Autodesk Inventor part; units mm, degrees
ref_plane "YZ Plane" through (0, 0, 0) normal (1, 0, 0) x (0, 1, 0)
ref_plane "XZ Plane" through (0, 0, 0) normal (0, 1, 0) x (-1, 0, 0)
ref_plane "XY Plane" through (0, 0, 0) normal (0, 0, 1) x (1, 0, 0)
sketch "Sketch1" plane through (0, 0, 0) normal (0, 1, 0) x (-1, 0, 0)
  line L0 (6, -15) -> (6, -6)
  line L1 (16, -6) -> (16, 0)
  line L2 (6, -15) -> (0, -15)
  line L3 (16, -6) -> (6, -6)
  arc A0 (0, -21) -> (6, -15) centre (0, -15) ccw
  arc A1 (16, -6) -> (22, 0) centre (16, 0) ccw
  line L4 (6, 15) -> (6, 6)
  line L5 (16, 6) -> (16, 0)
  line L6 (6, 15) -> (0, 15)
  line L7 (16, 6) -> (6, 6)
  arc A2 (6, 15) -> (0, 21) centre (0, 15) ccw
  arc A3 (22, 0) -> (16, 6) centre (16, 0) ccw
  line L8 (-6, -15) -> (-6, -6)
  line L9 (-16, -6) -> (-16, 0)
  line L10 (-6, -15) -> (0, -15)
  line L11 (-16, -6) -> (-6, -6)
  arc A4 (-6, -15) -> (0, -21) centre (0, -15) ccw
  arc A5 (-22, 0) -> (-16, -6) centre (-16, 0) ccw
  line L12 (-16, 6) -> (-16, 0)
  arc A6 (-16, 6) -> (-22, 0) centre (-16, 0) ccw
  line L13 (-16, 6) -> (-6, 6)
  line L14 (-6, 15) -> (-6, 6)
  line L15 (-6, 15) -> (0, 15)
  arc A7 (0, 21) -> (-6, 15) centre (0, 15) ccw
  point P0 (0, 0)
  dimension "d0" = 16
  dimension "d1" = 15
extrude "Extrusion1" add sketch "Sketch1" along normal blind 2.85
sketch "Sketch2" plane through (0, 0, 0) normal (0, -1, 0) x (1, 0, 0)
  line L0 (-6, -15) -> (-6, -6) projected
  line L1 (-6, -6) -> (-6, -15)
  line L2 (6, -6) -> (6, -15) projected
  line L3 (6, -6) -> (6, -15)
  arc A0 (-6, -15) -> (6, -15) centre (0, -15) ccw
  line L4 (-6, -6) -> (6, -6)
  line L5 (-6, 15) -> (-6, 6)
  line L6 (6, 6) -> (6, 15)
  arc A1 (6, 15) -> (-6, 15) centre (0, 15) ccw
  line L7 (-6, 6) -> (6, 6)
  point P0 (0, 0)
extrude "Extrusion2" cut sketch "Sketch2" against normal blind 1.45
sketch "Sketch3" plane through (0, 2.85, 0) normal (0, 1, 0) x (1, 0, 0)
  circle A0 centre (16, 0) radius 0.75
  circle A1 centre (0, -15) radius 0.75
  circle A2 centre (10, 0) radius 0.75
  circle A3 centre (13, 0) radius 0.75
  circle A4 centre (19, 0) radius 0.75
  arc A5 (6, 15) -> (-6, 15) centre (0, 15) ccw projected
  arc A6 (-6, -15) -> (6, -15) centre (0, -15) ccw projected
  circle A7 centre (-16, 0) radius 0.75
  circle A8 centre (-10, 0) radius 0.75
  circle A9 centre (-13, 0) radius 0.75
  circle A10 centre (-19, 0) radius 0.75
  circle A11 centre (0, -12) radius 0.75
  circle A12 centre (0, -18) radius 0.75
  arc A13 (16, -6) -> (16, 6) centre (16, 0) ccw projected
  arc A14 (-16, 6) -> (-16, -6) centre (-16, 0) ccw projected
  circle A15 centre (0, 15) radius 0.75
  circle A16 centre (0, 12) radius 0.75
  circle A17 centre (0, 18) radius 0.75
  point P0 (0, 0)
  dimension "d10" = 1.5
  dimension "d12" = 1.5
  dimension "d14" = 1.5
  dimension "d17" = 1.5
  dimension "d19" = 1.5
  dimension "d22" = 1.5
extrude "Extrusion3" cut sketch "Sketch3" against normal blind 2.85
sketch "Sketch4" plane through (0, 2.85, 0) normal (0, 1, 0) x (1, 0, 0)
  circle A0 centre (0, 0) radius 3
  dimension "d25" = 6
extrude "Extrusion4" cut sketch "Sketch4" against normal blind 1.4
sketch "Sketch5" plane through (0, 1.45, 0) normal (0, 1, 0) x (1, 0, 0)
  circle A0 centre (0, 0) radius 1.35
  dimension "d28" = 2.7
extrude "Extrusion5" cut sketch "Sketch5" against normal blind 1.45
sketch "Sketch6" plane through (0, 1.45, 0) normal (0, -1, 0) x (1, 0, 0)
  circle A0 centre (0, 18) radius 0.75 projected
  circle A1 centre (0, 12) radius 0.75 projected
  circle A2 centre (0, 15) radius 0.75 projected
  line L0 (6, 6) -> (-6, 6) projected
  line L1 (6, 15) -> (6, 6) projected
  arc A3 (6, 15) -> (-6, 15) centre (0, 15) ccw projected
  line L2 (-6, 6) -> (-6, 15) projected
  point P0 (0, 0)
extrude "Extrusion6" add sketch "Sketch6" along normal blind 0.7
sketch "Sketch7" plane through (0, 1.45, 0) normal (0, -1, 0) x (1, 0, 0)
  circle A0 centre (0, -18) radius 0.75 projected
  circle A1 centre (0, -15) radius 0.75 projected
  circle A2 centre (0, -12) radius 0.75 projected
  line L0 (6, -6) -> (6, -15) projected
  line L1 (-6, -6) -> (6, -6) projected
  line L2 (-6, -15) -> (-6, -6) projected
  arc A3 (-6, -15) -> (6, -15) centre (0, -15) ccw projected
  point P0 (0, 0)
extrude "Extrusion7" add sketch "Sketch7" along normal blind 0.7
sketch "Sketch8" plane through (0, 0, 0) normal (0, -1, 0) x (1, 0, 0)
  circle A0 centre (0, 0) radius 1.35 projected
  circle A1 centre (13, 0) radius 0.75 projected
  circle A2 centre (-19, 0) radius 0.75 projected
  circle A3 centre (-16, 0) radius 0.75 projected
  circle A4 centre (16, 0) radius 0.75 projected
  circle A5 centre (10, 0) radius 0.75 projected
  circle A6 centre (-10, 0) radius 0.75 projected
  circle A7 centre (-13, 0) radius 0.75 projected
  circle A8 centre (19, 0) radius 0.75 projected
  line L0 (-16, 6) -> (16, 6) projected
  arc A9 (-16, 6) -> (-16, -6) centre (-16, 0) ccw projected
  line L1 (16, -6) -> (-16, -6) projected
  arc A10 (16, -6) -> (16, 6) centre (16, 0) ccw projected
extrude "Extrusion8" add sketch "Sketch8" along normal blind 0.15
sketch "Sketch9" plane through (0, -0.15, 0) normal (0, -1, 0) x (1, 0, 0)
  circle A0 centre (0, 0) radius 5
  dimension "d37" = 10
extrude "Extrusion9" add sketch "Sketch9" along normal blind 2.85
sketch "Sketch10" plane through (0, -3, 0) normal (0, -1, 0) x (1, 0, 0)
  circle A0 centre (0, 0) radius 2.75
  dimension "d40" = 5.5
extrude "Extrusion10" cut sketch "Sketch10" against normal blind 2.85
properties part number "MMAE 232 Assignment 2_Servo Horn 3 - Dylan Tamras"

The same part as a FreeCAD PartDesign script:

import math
import FreeCAD as App
import Part
import Sketcher
from FreeCAD import Vector

doc = App.newDocument("Part")
body = doc.addObject("PartDesign::Body", "Body")

# Sketch on XZ plane
sketch1 = doc.addObject("Sketcher::SketchObject", "Sketch")
body.addObject(sketch1)
sketch1.AttachmentSupport = (doc.XZ_Plane, [""])
sketch1.MapMode = "FlatFace"
sketch1.addGeometry([
    Part.LineSegment(Vector(6, -6, 0), Vector(6, -15, 0)),  # 0
    Part.ArcOfCircle(Part.Circle(Vector(0, -15, 0), Vector(0, 0, 1), 6), math.radians(180), math.radians(360)),  # 1
    Part.LineSegment(Vector(-6, -15, 0), Vector(-6, -6, 0)),  # 2
    Part.LineSegment(Vector(-6, -6, 0), Vector(-16, -6, 0)),  # 3
    Part.ArcOfCircle(Part.Circle(Vector(-16, 0, 0), Vector(0, 0, 1), 6), math.radians(90), math.radians(270)),  # 4
    Part.LineSegment(Vector(-16, 6, 0), Vector(-6, 6, 0)),  # 5
    Part.LineSegment(Vector(-6, 6, 0), Vector(-6, 15, 0)),  # 6
    Part.ArcOfCircle(Part.Circle(Vector(0, 15, 0), Vector(0, 0, 1), 6), math.radians(0), math.radians(180)),  # 7
    Part.LineSegment(Vector(6, 15, 0), Vector(6, 6, 0)),  # 8
    Part.LineSegment(Vector(6, 6, 0), Vector(16, 6, 0)),  # 9
    Part.ArcOfCircle(Part.Circle(Vector(16, 0, 0), Vector(0, 0, 1), 6), math.radians(-90), math.radians(90)),  # 10
    Part.LineSegment(Vector(16, -6, 0), Vector(6, -6, 0)),  # 11
], False)
sketch1.addConstraint([
    Sketcher.Constraint("Tangent", 0, 2, 1, 2),
    Sketcher.Constraint("Tangent", 1, 1, 2, 1),
    Sketcher.Constraint("Coincident", 2, 2, 3, 1),
    Sketcher.Constraint("Tangent", 3, 2, 4, 2),
    Sketcher.Constraint("Tangent", 4, 1, 5, 1),
    Sketcher.Constraint("Coincident", 5, 2, 6, 1),
    Sketcher.Constraint("Tangent", 6, 2, 7, 2),
    Sketcher.Constraint("Tangent", 7, 1, 8, 1),
    Sketcher.Constraint("Coincident", 8, 2, 9, 1),
    Sketcher.Constraint("Tangent", 9, 2, 10, 2),
    Sketcher.Constraint("Tangent", 10, 1, 11, 1),
    Sketcher.Constraint("Coincident", 11, 2, 0, 1),
    Sketcher.Constraint("Vertical", 0),
    Sketcher.Constraint("Vertical", 2),
    Sketcher.Constraint("Horizontal", 3),
    Sketcher.Constraint("Horizontal", 5),
    Sketcher.Constraint("Vertical", 6),
    Sketcher.Constraint("Vertical", 8),
    Sketcher.Constraint("Horizontal", 9),
    Sketcher.Constraint("Horizontal", 11),
    Sketcher.Constraint("Equal", 1, 4),
    Sketcher.Constraint("Equal", 4, 7),
    Sketcher.Constraint("Equal", 7, 10),
    Sketcher.Constraint("Symmetric", 1, 3, 7, 3, -1, 1),
    Sketcher.Constraint("Symmetric", 4, 3, 10, 3, -1, 1),
    Sketcher.Constraint("Symmetric", 5, 2, 8, 2, -2),
    Sketcher.Constraint("DistanceY", 1, 3, -1, 1, 15.0),
    Sketcher.Constraint("DistanceX", 4, 3, -1, 1, 16.0),
    Sketcher.Constraint("Radius", 1, 6.0),
])
pad1 = doc.addObject("PartDesign::Pad", "Pad")
body.addObject(pad1)
pad1.Profile = sketch1
pad1.Length = 2.85
pad1.Reversed = True

# Sketch on XZ plane
sketch2 = doc.addObject("Sketcher::SketchObject", "Sketch001")
body.addObject(sketch2)
sketch2.AttachmentSupport = (doc.XZ_Plane, [""])
sketch2.MapMode = "FlatFace"
sketch2.addGeometry([
    Part.LineSegment(Vector(-6, -6, 0), Vector(-6, -15, 0)),  # 0
    Part.ArcOfCircle(Part.Circle(Vector(0, -15, 0), Vector(0, 0, 1), 6), math.radians(180), math.radians(360)),  # 1
    Part.LineSegment(Vector(6, -15, 0), Vector(6, -6, 0)),  # 2
    Part.LineSegment(Vector(6, -6, 0), Vector(-6, -6, 0)),  # 3
    Part.ArcOfCircle(Part.Circle(Vector(0, 15, 0), Vector(0, 0, 1), 6), math.radians(0), math.radians(180)),  # 4
    Part.LineSegment(Vector(-6, 15, 0), Vector(-6, 6, 0)),  # 5
    Part.LineSegment(Vector(-6, 6, 0), Vector(6, 6, 0)),  # 6
    Part.LineSegment(Vector(6, 6, 0), Vector(6, 15, 0)),  # 7
], False)
sketch2.addConstraint([
    Sketcher.Constraint("Tangent", 0, 2, 1, 1),
    Sketcher.Constraint("Tangent", 1, 2, 2, 1),
    Sketcher.Constraint("Coincident", 2, 2, 3, 1),
    Sketcher.Constraint("Coincident", 3, 2, 0, 1),
    Sketcher.Constraint("Tangent", 4, 2, 5, 1),
    Sketcher.Constraint("Coincident", 5, 2, 6, 1),
    Sketcher.Constraint("Coincident", 6, 2, 7, 1),
    Sketcher.Constraint("Tangent", 7, 2, 4, 1),
    Sketcher.Constraint("Vertical", 0),
    Sketcher.Constraint("Vertical", 2),
    Sketcher.Constraint("Horizontal", 3),
    Sketcher.Constraint("Vertical", 5),
    Sketcher.Constraint("Horizontal", 6),
    Sketcher.Constraint("Vertical", 7),
    Sketcher.Constraint("Equal", 1, 4),
    Sketcher.Constraint("Symmetric", 1, 3, 4, 3, -1, 1),
    Sketcher.Constraint("Symmetric", 3, 2, 5, 2, -1),
    Sketcher.Constraint("Radius", 1, 6.0),
    Sketcher.Constraint("DistanceY", 0, 2, 0, 1, 9.0),
    Sketcher.Constraint("DistanceY", 1, 3, -1, 1, 15.0),
])
pocket1 = doc.addObject("PartDesign::Pocket", "Pocket")
body.addObject(pocket1)
pocket1.Profile = sketch2
pocket1.Length = 1.45

# Sketch on XZ plane
sketch3 = doc.addObject("Sketcher::SketchObject", "Sketch002")
body.addObject(sketch3)
sketch3.AttachmentSupport = (doc.XZ_Plane, [""])
sketch3.MapMode = "FlatFace"
sketch3.AttachmentOffset = App.Placement(Vector(0, 0, -2.85), App.Rotation())
sketch3.addGeometry([
    Part.Circle(Vector(16, 0, 0), Vector(0, 0, 1), 0.8),  # 0
    Part.Circle(Vector(0, 15, 0), Vector(0, 0, 1), 0.8),  # 1
    Part.Circle(Vector(10, 0, 0), Vector(0, 0, 1), 0.8),  # 2
    Part.Circle(Vector(13, 0, 0), Vector(0, 0, 1), 0.8),  # 3
    Part.Circle(Vector(19, 0, 0), Vector(0, 0, 1), 0.8),  # 4
    Part.Circle(Vector(-16, 0, 0), Vector(0, 0, 1), 0.8),  # 5
    Part.Circle(Vector(-10, 0, 0), Vector(0, 0, 1), 0.8),  # 6
    Part.Circle(Vector(-13, 0, 0), Vector(0, 0, 1), 0.8),  # 7
    Part.Circle(Vector(-19, 0, 0), Vector(0, 0, 1), 0.8),  # 8
    Part.Circle(Vector(0, 12, 0), Vector(0, 0, 1), 0.8),  # 9
    Part.Circle(Vector(0, 18, 0), Vector(0, 0, 1), 0.8),  # 10
    Part.Circle(Vector(0, -15, 0), Vector(0, 0, 1), 0.8),  # 11
    Part.Circle(Vector(0, -12, 0), Vector(0, 0, 1), 0.8),  # 12
    Part.Circle(Vector(0, -18, 0), Vector(0, 0, 1), 0.8),  # 13
], False)
sketch3.addConstraint([
    Sketcher.Constraint("Equal", 0, 1),
    Sketcher.Constraint("Equal", 1, 2),
    Sketcher.Constraint("Equal", 2, 3),
    Sketcher.Constraint("Equal", 3, 4),
    Sketcher.Constraint("Equal", 4, 5),
    Sketcher.Constraint("Equal", 5, 6),
    Sketcher.Constraint("Equal", 6, 7),
    Sketcher.Constraint("Equal", 7, 8),
    Sketcher.Constraint("Equal", 8, 9),
    Sketcher.Constraint("Equal", 9, 10),
    Sketcher.Constraint("Equal", 10, 11),
    Sketcher.Constraint("Equal", 11, 12),
    Sketcher.Constraint("Equal", 12, 13),
    Sketcher.Constraint("Symmetric", 0, 3, 5, 3, -1, 1),
    Sketcher.Constraint("Symmetric", 2, 3, 6, 3, -1, 1),
    Sketcher.Constraint("Symmetric", 3, 3, 7, 3, -1, 1),
    Sketcher.Constraint("Symmetric", 4, 3, 8, 3, -1, 1),
    Sketcher.Constraint("Symmetric", 1, 3, 11, 3, -1, 1),
    Sketcher.Constraint("Symmetric", 9, 3, 12, 3, -1, 1),
    Sketcher.Constraint("Symmetric", 10, 3, 13, 3, -1, 1),
    Sketcher.Constraint("PointOnObject", 0, 3, -1),
    Sketcher.Constraint("PointOnObject", 1, 3, -2),
    Sketcher.Constraint("PointOnObject", 2, 3, -1),
    Sketcher.Constraint("PointOnObject", 3, 3, -1),
    Sketcher.Constraint("PointOnObject", 4, 3, -1),
    Sketcher.Constraint("PointOnObject", 9, 3, -2),
    Sketcher.Constraint("PointOnObject", 10, 3, -2),
    Sketcher.Constraint("Diameter", 0, 1.5),
    Sketcher.Constraint("DistanceX", -1, 1, 0, 3, 16.0),
    Sketcher.Constraint("DistanceY", -1, 1, 1, 3, 15.0),
    Sketcher.Constraint("DistanceX", -1, 1, 2, 3, 10.0),
    Sketcher.Constraint("DistanceX", -1, 1, 3, 3, 13.0),
    Sketcher.Constraint("DistanceX", -1, 1, 4, 3, 19.0),
    Sketcher.Constraint("DistanceY", -1, 1, 9, 3, 12.0),
    Sketcher.Constraint("DistanceY", -1, 1, 10, 3, 18.0),
])
pocket2 = doc.addObject("PartDesign::Pocket", "Pocket001")
body.addObject(pocket2)
pocket2.Profile = sketch3
pocket2.Length = 2.85
pocket2.Reversed = True

# Sketch on XZ plane
sketch4 = doc.addObject("Sketcher::SketchObject", "Sketch003")
body.addObject(sketch4)
sketch4.AttachmentSupport = (doc.XZ_Plane, [""])
sketch4.MapMode = "FlatFace"
sketch4.AttachmentOffset = App.Placement(Vector(0, 0, -2.85), App.Rotation())
sketch4.addGeometry(Part.Circle(Vector(0, 0, 0), Vector(0, 0, 1), 3), False)
sketch4.addConstraint([
    Sketcher.Constraint("Coincident", 0, 3, -1, 1),
    Sketcher.Constraint("Diameter", 0, 6.0),
])
pocket3 = doc.addObject("PartDesign::Pocket", "Pocket002")
body.addObject(pocket3)
pocket3.Profile = sketch4
pocket3.Length = 1.4
pocket3.Reversed = True

# Sketch on XZ plane
sketch5 = doc.addObject("Sketcher::SketchObject", "Sketch004")
body.addObject(sketch5)
sketch5.AttachmentSupport = (doc.XZ_Plane, [""])
sketch5.MapMode = "FlatFace"
sketch5.AttachmentOffset = App.Placement(Vector(0, 0, -1.45), App.Rotation())
sketch5.addGeometry(Part.Circle(Vector(0, 0, 0), Vector(0, 0, 1), 1.4), False)
sketch5.addConstraint([
    Sketcher.Constraint("Coincident", 0, 3, -1, 1),
    Sketcher.Constraint("Diameter", 0, 2.7),
])
pocket4 = doc.addObject("PartDesign::Pocket", "Pocket003")
body.addObject(pocket4)
pocket4.Profile = sketch5
pocket4.Length = 1.45
pocket4.Reversed = True

# Sketch on XZ plane
sketch6 = doc.addObject("Sketcher::SketchObject", "Sketch005")
body.addObject(sketch6)
sketch6.AttachmentSupport = (doc.XZ_Plane, [""])
sketch6.MapMode = "FlatFace"
sketch6.AttachmentOffset = App.Placement(Vector(0, 0, -1.45), App.Rotation())
sketch6.addGeometry([
    Part.LineSegment(Vector(-6, 6, 0), Vector(6, 6, 0)),  # 0
    Part.LineSegment(Vector(6, 6, 0), Vector(6, 15, 0)),  # 1
    Part.ArcOfCircle(Part.Circle(Vector(0, 15, 0), Vector(0, 0, 1), 6), math.radians(0), math.radians(180)),  # 2
    Part.LineSegment(Vector(-6, 15, 0), Vector(-6, 6, 0)),  # 3
    Part.Circle(Vector(0, 12, 0), Vector(0, 0, 1), 0.8),  # 4
    Part.Circle(Vector(0, 15, 0), Vector(0, 0, 1), 0.8),  # 5
    Part.Circle(Vector(0, 18, 0), Vector(0, 0, 1), 0.8),  # 6
], False)
sketch6.addConstraint([
    Sketcher.Constraint("Coincident", 0, 2, 1, 1),
    Sketcher.Constraint("Tangent", 1, 2, 2, 1),
    Sketcher.Constraint("Tangent", 2, 2, 3, 1),
    Sketcher.Constraint("Coincident", 3, 2, 0, 1),
    Sketcher.Constraint("Horizontal", 0),
    Sketcher.Constraint("Vertical", 1),
    Sketcher.Constraint("Vertical", 3),
    Sketcher.Constraint("Coincident", 5, 3, 2, 3),
    Sketcher.Constraint("Equal", 4, 5),
    Sketcher.Constraint("Equal", 5, 6),
    Sketcher.Constraint("PointOnObject", 2, 3, -2),
    Sketcher.Constraint("PointOnObject", 4, 3, -2),
    Sketcher.Constraint("PointOnObject", 6, 3, -2),
    Sketcher.Constraint("Radius", 2, 6.0),
    Sketcher.Constraint("Diameter", 4, 1.5),
    Sketcher.Constraint("DistanceY", 1, 1, 1, 2, 9.0),
    Sketcher.Constraint("DistanceY", -1, 1, 2, 3, 15.0),
    Sketcher.Constraint("DistanceY", -1, 1, 4, 3, 12.0),
    Sketcher.Constraint("DistanceY", -1, 1, 6, 3, 18.0),
])
pad2 = doc.addObject("PartDesign::Pad", "Pad001")
body.addObject(pad2)
pad2.Profile = sketch6
pad2.Length = 0.7

# Sketch on XZ plane
sketch7 = doc.addObject("Sketcher::SketchObject", "Sketch006")
body.addObject(sketch7)
sketch7.AttachmentSupport = (doc.XZ_Plane, [""])
sketch7.MapMode = "FlatFace"
sketch7.AttachmentOffset = App.Placement(Vector(0, 0, -1.45), App.Rotation())
sketch7.addGeometry([
    Part.LineSegment(Vector(6, -15, 0), Vector(6, -6, 0)),  # 0
    Part.LineSegment(Vector(6, -6, 0), Vector(-6, -6, 0)),  # 1
    Part.LineSegment(Vector(-6, -6, 0), Vector(-6, -15, 0)),  # 2
    Part.ArcOfCircle(Part.Circle(Vector(0, -15, 0), Vector(0, 0, 1), 6), math.radians(180), math.radians(360)),  # 3
    Part.Circle(Vector(0, -18, 0), Vector(0, 0, 1), 0.8),  # 4
    Part.Circle(Vector(0, -15, 0), Vector(0, 0, 1), 0.8),  # 5
    Part.Circle(Vector(0, -12, 0), Vector(0, 0, 1), 0.8),  # 6
], False)
sketch7.addConstraint([
    Sketcher.Constraint("Coincident", 0, 2, 1, 1),
    Sketcher.Constraint("Coincident", 1, 2, 2, 1),
    Sketcher.Constraint("Tangent", 2, 2, 3, 1),
    Sketcher.Constraint("Tangent", 3, 2, 0, 1),
    Sketcher.Constraint("Vertical", 0),
    Sketcher.Constraint("Horizontal", 1),
    Sketcher.Constraint("Vertical", 2),
    Sketcher.Constraint("Coincident", 5, 3, 3, 3),
    Sketcher.Constraint("Equal", 4, 5),
    Sketcher.Constraint("Equal", 5, 6),
    Sketcher.Constraint("PointOnObject", 3, 3, -2),
    Sketcher.Constraint("PointOnObject", 4, 3, -2),
    Sketcher.Constraint("PointOnObject", 6, 3, -2),
    Sketcher.Constraint("Radius", 3, 6.0),
    Sketcher.Constraint("Diameter", 4, 1.5),
    Sketcher.Constraint("DistanceY", 0, 1, 0, 2, 9.0),
    Sketcher.Constraint("DistanceY", 3, 3, -1, 1, 15.0),
    Sketcher.Constraint("DistanceY", 4, 3, -1, 1, 18.0),
    Sketcher.Constraint("DistanceY", 6, 3, -1, 1, 12.0),
])
pad3 = doc.addObject("PartDesign::Pad", "Pad002")
body.addObject(pad3)
pad3.Profile = sketch7
pad3.Length = 0.7

# Sketch on XZ plane
sketch8 = doc.addObject("Sketcher::SketchObject", "Sketch007")
body.addObject(sketch8)
sketch8.AttachmentSupport = (doc.XZ_Plane, [""])
sketch8.MapMode = "FlatFace"
sketch8.addGeometry([
    Part.LineSegment(Vector(16, 6, 0), Vector(-16, 6, 0)),  # 0
    Part.ArcOfCircle(Part.Circle(Vector(-16, 0, 0), Vector(0, 0, 1), 6), math.radians(90), math.radians(270)),  # 1
    Part.LineSegment(Vector(-16, -6, 0), Vector(16, -6, 0)),  # 2
    Part.ArcOfCircle(Part.Circle(Vector(16, 0, 0), Vector(0, 0, 1), 6), math.radians(-90), math.radians(90)),  # 3
    Part.Circle(Vector(-19, 0, 0), Vector(0, 0, 1), 0.8),  # 4
    Part.Circle(Vector(-16, 0, 0), Vector(0, 0, 1), 0.8),  # 5
    Part.Circle(Vector(-13, 0, 0), Vector(0, 0, 1), 0.8),  # 6
    Part.Circle(Vector(-10, 0, 0), Vector(0, 0, 1), 0.8),  # 7
    Part.Circle(Vector(0, 0, 0), Vector(0, 0, 1), 1.4),  # 8
    Part.Circle(Vector(10, 0, 0), Vector(0, 0, 1), 0.8),  # 9
    Part.Circle(Vector(13, 0, 0), Vector(0, 0, 1), 0.8),  # 10
    Part.Circle(Vector(16, 0, 0), Vector(0, 0, 1), 0.8),  # 11
    Part.Circle(Vector(19, 0, 0), Vector(0, 0, 1), 0.8),  # 12
], False)
sketch8.addConstraint([
    Sketcher.Constraint("Tangent", 0, 2, 1, 1),
    Sketcher.Constraint("Tangent", 1, 2, 2, 1),
    Sketcher.Constraint("Tangent", 2, 2, 3, 1),
    Sketcher.Constraint("Tangent", 3, 2, 0, 1),
    Sketcher.Constraint("Horizontal", 0),
    Sketcher.Constraint("Horizontal", 2),
    Sketcher.Constraint("Coincident", 8, 3, -1, 1),
    Sketcher.Constraint("Coincident", 5, 3, 1, 3),
    Sketcher.Constraint("Coincident", 11, 3, 3, 3),
    Sketcher.Constraint("Equal", 4, 5),
    Sketcher.Constraint("Equal", 5, 6),
    Sketcher.Constraint("Equal", 6, 7),
    Sketcher.Constraint("Equal", 7, 9),
    Sketcher.Constraint("Equal", 9, 10),
    Sketcher.Constraint("Equal", 10, 11),
    Sketcher.Constraint("Equal", 11, 12),
    Sketcher.Constraint("Symmetric", 1, 3, 3, 3, -1, 1),
    Sketcher.Constraint("Symmetric", 7, 3, 9, 3, -1, 1),
    Sketcher.Constraint("Symmetric", 6, 3, 10, 3, -1, 1),
    Sketcher.Constraint("Symmetric", 4, 3, 12, 3, -1, 1),
    Sketcher.Constraint("PointOnObject", 4, 3, -1),
    Sketcher.Constraint("PointOnObject", 6, 3, -1),
    Sketcher.Constraint("PointOnObject", 7, 3, -1),
    Sketcher.Constraint("Radius", 1, 6.0),
    Sketcher.Constraint("Diameter", 4, 1.5),
    Sketcher.Constraint("Diameter", 8, 2.7),
    Sketcher.Constraint("DistanceX", 0, 2, 0, 1, 32.0),
    Sketcher.Constraint("DistanceX", 4, 3, -1, 1, 19.0),
    Sketcher.Constraint("DistanceX", 6, 3, -1, 1, 13.0),
    Sketcher.Constraint("DistanceX", 7, 3, -1, 1, 10.0),
])
pad4 = doc.addObject("PartDesign::Pad", "Pad003")
body.addObject(pad4)
pad4.Profile = sketch8
pad4.Length = 0.15

# Sketch on XZ plane
sketch9 = doc.addObject("Sketcher::SketchObject", "Sketch008")
body.addObject(sketch9)
sketch9.AttachmentSupport = (doc.XZ_Plane, [""])
sketch9.MapMode = "FlatFace"
sketch9.AttachmentOffset = App.Placement(Vector(0, 0, 0.15), App.Rotation())
sketch9.addGeometry(Part.Circle(Vector(0, 0, 0), Vector(0, 0, 1), 5), False)
sketch9.addConstraint([
    Sketcher.Constraint("Coincident", 0, 3, -1, 1),
    Sketcher.Constraint("Diameter", 0, 10.0),
])
pad5 = doc.addObject("PartDesign::Pad", "Pad004")
body.addObject(pad5)
pad5.Profile = sketch9
pad5.Length = 2.85

# Sketch on XZ plane
sketch10 = doc.addObject("Sketcher::SketchObject", "Sketch009")
body.addObject(sketch10)
sketch10.AttachmentSupport = (doc.XZ_Plane, [""])
sketch10.MapMode = "FlatFace"
sketch10.AttachmentOffset = App.Placement(Vector(0, 0, 3), App.Rotation())
sketch10.addGeometry(Part.Circle(Vector(0, 0, 0), Vector(0, 0, 1), 2.8), False)
sketch10.addConstraint([
    Sketcher.Constraint("Coincident", 0, 3, -1, 1),
    Sketcher.Constraint("Diameter", 0, 5.5),
])
pocket5 = doc.addObject("PartDesign::Pocket", "Pocket004")
body.addObject(pocket5)
pocket5.Profile = sketch10
pocket5.Length = 2.85

doc.recompute()
